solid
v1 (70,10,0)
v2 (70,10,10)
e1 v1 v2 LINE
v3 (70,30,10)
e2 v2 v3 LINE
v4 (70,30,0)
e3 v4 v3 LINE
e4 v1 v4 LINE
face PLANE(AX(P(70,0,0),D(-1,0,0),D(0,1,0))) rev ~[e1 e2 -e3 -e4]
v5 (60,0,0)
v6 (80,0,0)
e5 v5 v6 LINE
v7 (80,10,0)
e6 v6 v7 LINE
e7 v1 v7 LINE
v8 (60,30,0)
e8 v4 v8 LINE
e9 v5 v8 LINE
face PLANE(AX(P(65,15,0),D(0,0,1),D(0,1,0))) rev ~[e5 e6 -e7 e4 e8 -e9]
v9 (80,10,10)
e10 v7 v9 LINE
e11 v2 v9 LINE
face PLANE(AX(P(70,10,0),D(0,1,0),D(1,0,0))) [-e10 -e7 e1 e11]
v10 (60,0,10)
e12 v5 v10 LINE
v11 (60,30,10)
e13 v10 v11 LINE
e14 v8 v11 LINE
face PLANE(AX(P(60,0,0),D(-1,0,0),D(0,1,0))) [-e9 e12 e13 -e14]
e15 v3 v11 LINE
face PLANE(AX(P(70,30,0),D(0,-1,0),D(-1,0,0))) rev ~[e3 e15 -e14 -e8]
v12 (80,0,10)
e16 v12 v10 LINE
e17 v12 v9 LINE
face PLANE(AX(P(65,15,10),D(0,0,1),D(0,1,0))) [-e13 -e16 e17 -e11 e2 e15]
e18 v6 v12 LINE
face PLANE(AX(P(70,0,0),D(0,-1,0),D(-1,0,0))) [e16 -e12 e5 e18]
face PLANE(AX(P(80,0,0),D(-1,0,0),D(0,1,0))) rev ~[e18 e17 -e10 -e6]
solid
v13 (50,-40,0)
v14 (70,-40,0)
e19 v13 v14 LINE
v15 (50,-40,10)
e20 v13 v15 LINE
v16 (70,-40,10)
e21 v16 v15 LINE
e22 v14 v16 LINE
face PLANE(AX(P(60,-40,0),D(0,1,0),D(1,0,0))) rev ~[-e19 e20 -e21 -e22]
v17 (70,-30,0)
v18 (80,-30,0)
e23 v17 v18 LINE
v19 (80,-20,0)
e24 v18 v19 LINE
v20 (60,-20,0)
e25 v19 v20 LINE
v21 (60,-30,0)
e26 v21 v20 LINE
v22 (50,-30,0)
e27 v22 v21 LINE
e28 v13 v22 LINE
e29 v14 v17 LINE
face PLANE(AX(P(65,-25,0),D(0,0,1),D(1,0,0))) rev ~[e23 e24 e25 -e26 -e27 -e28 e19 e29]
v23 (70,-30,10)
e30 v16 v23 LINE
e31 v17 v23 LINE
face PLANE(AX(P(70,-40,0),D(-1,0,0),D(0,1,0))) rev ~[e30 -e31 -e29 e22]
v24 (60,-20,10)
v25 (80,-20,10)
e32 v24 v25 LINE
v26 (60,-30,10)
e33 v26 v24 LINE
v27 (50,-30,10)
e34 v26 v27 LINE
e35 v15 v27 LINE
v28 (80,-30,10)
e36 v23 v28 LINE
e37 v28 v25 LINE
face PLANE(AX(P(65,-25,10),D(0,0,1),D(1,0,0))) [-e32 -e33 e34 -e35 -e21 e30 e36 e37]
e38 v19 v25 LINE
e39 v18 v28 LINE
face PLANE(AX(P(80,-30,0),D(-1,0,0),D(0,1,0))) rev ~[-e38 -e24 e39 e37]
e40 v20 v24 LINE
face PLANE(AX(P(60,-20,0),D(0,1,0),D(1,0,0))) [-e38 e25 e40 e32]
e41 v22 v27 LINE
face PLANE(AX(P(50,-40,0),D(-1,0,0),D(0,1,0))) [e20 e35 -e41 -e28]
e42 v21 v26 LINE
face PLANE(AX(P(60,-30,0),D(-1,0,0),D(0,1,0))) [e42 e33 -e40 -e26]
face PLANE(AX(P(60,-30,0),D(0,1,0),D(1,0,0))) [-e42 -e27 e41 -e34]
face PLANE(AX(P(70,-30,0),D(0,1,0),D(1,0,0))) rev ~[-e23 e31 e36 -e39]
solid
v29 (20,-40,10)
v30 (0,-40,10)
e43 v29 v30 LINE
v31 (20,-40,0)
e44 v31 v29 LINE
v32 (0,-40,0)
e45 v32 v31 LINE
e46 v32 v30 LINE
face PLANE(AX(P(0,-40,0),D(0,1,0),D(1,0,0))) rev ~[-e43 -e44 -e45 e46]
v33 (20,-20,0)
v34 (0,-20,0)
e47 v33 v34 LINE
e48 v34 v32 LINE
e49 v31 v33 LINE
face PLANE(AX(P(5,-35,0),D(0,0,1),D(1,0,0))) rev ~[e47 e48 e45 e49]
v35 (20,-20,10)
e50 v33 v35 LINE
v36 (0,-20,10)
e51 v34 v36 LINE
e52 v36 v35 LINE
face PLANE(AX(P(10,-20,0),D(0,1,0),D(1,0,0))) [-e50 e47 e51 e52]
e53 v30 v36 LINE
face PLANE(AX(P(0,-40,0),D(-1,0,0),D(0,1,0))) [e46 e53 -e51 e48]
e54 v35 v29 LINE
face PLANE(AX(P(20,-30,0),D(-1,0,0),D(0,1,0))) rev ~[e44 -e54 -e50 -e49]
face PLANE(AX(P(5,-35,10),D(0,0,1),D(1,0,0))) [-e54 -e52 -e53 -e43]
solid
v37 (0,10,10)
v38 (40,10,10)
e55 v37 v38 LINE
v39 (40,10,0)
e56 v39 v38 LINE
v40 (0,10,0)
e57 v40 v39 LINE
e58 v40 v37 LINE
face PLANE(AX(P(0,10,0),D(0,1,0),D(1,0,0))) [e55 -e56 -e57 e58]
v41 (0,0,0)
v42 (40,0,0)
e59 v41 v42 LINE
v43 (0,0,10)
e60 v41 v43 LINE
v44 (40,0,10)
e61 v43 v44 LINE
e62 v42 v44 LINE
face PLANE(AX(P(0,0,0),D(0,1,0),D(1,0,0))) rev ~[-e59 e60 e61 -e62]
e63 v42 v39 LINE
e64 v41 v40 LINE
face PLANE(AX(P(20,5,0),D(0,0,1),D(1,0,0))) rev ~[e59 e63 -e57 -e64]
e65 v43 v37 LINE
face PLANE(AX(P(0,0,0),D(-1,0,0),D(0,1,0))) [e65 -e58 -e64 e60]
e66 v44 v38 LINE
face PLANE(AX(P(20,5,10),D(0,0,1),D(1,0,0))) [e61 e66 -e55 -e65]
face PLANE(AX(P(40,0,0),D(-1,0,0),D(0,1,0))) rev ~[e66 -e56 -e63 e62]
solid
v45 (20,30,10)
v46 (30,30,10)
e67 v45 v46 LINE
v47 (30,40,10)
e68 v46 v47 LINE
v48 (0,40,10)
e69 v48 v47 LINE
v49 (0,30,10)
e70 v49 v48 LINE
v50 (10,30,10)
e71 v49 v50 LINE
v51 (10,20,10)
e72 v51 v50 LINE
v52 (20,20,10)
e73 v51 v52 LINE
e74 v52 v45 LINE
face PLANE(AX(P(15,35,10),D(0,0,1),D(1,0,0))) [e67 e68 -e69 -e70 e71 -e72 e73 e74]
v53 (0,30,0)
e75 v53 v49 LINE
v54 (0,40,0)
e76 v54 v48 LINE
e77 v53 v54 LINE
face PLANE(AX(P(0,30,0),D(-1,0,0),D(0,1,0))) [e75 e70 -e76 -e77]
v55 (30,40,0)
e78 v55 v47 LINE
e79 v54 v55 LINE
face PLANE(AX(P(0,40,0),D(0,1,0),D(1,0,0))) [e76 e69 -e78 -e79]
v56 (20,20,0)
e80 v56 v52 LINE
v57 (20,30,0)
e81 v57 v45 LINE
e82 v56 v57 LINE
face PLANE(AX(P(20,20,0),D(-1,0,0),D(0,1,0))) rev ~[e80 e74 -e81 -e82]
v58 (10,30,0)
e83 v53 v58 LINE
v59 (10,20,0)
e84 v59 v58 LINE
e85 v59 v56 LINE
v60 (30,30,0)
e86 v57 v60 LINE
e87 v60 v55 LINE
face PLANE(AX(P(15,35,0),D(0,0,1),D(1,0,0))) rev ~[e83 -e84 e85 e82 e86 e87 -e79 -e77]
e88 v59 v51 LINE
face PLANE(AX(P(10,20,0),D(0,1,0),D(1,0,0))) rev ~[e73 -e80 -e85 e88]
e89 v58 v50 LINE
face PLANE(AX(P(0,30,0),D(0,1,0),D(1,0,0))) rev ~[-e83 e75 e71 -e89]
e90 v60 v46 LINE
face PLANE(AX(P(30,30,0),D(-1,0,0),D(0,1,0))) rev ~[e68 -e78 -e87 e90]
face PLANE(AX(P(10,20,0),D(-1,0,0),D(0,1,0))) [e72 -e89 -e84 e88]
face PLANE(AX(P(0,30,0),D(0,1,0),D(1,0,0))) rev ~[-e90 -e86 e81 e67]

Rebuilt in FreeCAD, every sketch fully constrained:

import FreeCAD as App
import Part
import Sketcher
from FreeCAD import Vector


def add_polygon(sketch, points):
    """Adds a closed chain of lines whose ends are joined by coincident constraints."""
    first, n = sketch.GeometryCount, len(points)
    for a, b in zip(points, points[1:] + points[:1]):
        sketch.addGeometry(Part.LineSegment(App.Vector(*a, 0), App.Vector(*b, 0)), False)
    for i in range(n):
        sketch.addConstraint(Sketcher.Constraint("Coincident", first + i, 2, first + (i + 1) % n, 1))

doc = App.newDocument("Part")
params = doc.addObject("Spreadsheet::Sheet", "Params")
for row, (alias, value) in enumerate([
    ("sketch1_width", "40 mm"),
    ("sketch1_height", "10 mm"),
    ("pad1_length", "10 mm"),
    ("sketch2_width", "30 mm"),
    ("sketch2_height", "10 mm"),
    ("pad2_length", "10 mm"),
    ("sketch3_width", "10 mm"),
    ("pad3_length", "10 mm"),
    ("sketch4_width", "10 mm"),
    ("pad4_length", "10 mm"),
    ("sketch5_width", "10 mm"),
    ("pad5_length", "10 mm"),
    ("sketch6_width", "10 mm"),
    ("pad6_length", "10 mm"),
    ("sketch7_width", "10 mm"),
    ("pad7_length", "10 mm"),
    ("sketch8_width", "10 mm"),
    ("sketch8_height", "30 mm"),
    ("pad8_length", "10 mm"),
    ("sketch9_width", "10 mm"),
    ("pad9_length", "10 mm"),
    ("sketch10_width", "10 mm"),
    ("pad10_length", "10 mm"),
    ("sketch11_width", "10 mm"),
    ("pad11_length", "10 mm"),
    ("sketch12_width", "10 mm"),
    ("pad12_length", "10 mm"),
    ("sketch13_width", "10 mm"),
    ("pad13_length", "10 mm"),
], start=1):
    params.set(f"A{row}", alias)
    params.set(f"B{row}", "=" + value)
    params.setAlias(f"B{row}", alias)

body = doc.addObject("PartDesign::Body", "Body")

# Sketch on XY plane
sketch1 = doc.addObject("Sketcher::SketchObject", "Sketch")
body.addObject(sketch1)
sketch1.AttachmentSupport = (doc.XY_Plane, [""])
sketch1.MapMode = "FlatFace"
add_polygon(sketch1, [(0, 10), (0, 0), (40, 0), (40, 10)])  # lines 0-3
sketch1.addConstraint([
    Sketcher.Constraint("Vertical", 0),
    Sketcher.Constraint("Horizontal", 1),
    Sketcher.Constraint("Vertical", 2),
    Sketcher.Constraint("Horizontal", 3),
    Sketcher.Constraint("Coincident", 0, 2, -1, 1),
    Sketcher.Constraint("DistanceX", 1, 1, 1, 2, 40.0),
    Sketcher.Constraint("DistanceY", 0, 2, 0, 1, 10.0),
])
sketch1.setExpression("Constraints[9]", "Params.sketch1_width")
sketch1.setExpression("Constraints[10]", "Params.sketch1_height")
pad1 = doc.addObject("PartDesign::Pad", "Pad")
body.addObject(pad1)
pad1.Profile = sketch1
pad1.setExpression("Length", "Params.pad1_length")
body2 = doc.addObject("PartDesign::Body", "Body001")

# Sketch on XY plane
sketch2 = doc.addObject("Sketcher::SketchObject", "Sketch001")
body2.addObject(sketch2)
sketch2.AttachmentSupport = (doc.getObject("XY_Plane001"), [""])
sketch2.MapMode = "FlatFace"
add_polygon(sketch2, [(0, 40), (0, 30), (30, 30), (30, 40)])  # lines 0-3
sketch2.addConstraint([
    Sketcher.Constraint("Vertical", 0),
    Sketcher.Constraint("Horizontal", 1),
    Sketcher.Constraint("Vertical", 2),
    Sketcher.Constraint("Horizontal", 3),
    Sketcher.Constraint("PointOnObject", 0, 2, -2),
    Sketcher.Constraint("DistanceX", 1, 1, 1, 2, 30.0),
    Sketcher.Constraint("DistanceY", 0, 2, 0, 1, 10.0),
    Sketcher.Constraint("DistanceY", -1, 1, 0, 2, 30.0),
])
sketch2.setExpression("Constraints[9]", "Params.sketch2_width")
sketch2.setExpression("Constraints[10]", "Params.sketch2_height")
pad2 = doc.addObject("PartDesign::Pad", "Pad001")
body2.addObject(pad2)
pad2.Profile = sketch2
pad2.setExpression("Length", "Params.pad2_length")
body3 = doc.addObject("PartDesign::Body", "Body002")

# Sketch on XY plane
sketch3 = doc.addObject("Sketcher::SketchObject", "Sketch002")
body3.addObject(sketch3)
sketch3.AttachmentSupport = (doc.getObject("XY_Plane002"), [""])
sketch3.MapMode = "FlatFace"
add_polygon(sketch3, [(10, 30), (10, 20), (20, 20), (20, 30)])  # lines 0-3
sketch3.addConstraint([
    Sketcher.Constraint("Vertical", 0),
    Sketcher.Constraint("Horizontal", 1),
    Sketcher.Constraint("Vertical", 2),
    Sketcher.Constraint("Horizontal", 3),
    Sketcher.Constraint("Equal", 3, 0),
    Sketcher.Constraint("DistanceX", 1, 1, 1, 2, 10.0),
    Sketcher.Constraint("DistanceX", -1, 1, 0, 2, 10.0),
    Sketcher.Constraint("DistanceY", -1, 1, 0, 2, 20.0),
])
sketch3.setExpression("Constraints[9]", "Params.sketch3_width")
pad3 = doc.addObject("PartDesign::Pad", "Pad002")
body3.addObject(pad3)
pad3.Profile = sketch3
pad3.setExpression("Length", "Params.pad3_length")
doc.recompute()

boolean = doc.addObject("PartDesign::Boolean", "Boolean")
body3.addObject(boolean)
boolean.Type = "Fuse"
boolean.addObjects([body2])
body4 = doc.addObject("PartDesign::Body", "Body003")

# Sketch on XY plane
sketch4 = doc.addObject("Sketcher::SketchObject", "Sketch003")
body4.addObject(sketch4)
sketch4.AttachmentSupport = (doc.getObject("XY_Plane003"), [""])
sketch4.MapMode = "FlatFace"
add_polygon(sketch4, [(0, -20), (0, -30), (10, -30), (10, -20)])  # lines 0-3
sketch4.addConstraint([
    Sketcher.Constraint("Vertical", 0),
    Sketcher.Constraint("Horizontal", 1),
    Sketcher.Constraint("Vertical", 2),
    Sketcher.Constraint("Horizontal", 3),
    Sketcher.Constraint("PointOnObject", 0, 2, -2),
    Sketcher.Constraint("Equal", 3, 0),
    Sketcher.Constraint("DistanceX", 1, 1, 1, 2, 10.0),
    Sketcher.Constraint("DistanceY", 0, 2, -1, 1, 30.0),
])
sketch4.setExpression("Constraints[10]", "Params.sketch4_width")
pad4 = doc.addObject("PartDesign::Pad", "Pad003")
body4.addObject(pad4)
pad4.Profile = sketch4
pad4.setExpression("Length", "Params.pad4_length")
body5 = doc.addObject("PartDesign::Body", "Body004")

# Sketch on XY plane
sketch5 = doc.addObject("Sketcher::SketchObject", "Sketch004")
body5.addObject(sketch5)
sketch5.AttachmentSupport = (doc.getObject("XY_Plane004"), [""])
sketch5.MapMode = "FlatFace"
add_polygon(sketch5, [(10, -20), (10, -30), (20, -30), (20, -20)])  # lines 0-3
sketch5.addConstraint([
    Sketcher.Constraint("Vertical", 0),
    Sketcher.Constraint("Horizontal", 1),
    Sketcher.Constraint("Vertical", 2),
    Sketcher.Constraint("Horizontal", 3),
    Sketcher.Constraint("Equal", 3, 0),
    Sketcher.Constraint("DistanceX", 1, 1, 1, 2, 10.0),
    Sketcher.Constraint("DistanceX", -1, 1, 0, 2, 10.0),
    Sketcher.Constraint("DistanceY", 0, 2, -1, 1, 30.0),
])
sketch5.setExpression("Constraints[9]", "Params.sketch5_width")
pad5 = doc.addObject("PartDesign::Pad", "Pad004")
body5.addObject(pad5)
pad5.Profile = sketch5
pad5.setExpression("Length", "Params.pad5_length")
body6 = doc.addObject("PartDesign::Body", "Body005")

# Sketch on XY plane
sketch6 = doc.addObject("Sketcher::SketchObject", "Sketch005")
body6.addObject(sketch6)
sketch6.AttachmentSupport = (doc.getObject("XY_Plane005"), [""])
sketch6.MapMode = "FlatFace"
add_polygon(sketch6, [(0, -30), (0, -40), (10, -40), (10, -30)])  # lines 0-3
sketch6.addConstraint([
    Sketcher.Constraint("Vertical", 0),
    Sketcher.Constraint("Horizontal", 1),
    Sketcher.Constraint("Vertical", 2),
    Sketcher.Constraint("Horizontal", 3),
    Sketcher.Constraint("PointOnObject", 0, 2, -2),
    Sketcher.Constraint("Equal", 3, 0),
    Sketcher.Constraint("DistanceX", 1, 1, 1, 2, 10.0),
    Sketcher.Constraint("DistanceY", 0, 2, -1, 1, 40.0),
])
sketch6.setExpression("Constraints[10]", "Params.sketch6_width")
pad6 = doc.addObject("PartDesign::Pad", "Pad005")
body6.addObject(pad6)
pad6.Profile = sketch6
pad6.setExpression("Length", "Params.pad6_length")
body7 = doc.addObject("PartDesign::Body", "Body006")
body7.AllowCompound = True

# Sketch on XY plane
sketch7 = doc.addObject("Sketcher::SketchObject", "Sketch006")
body7.addObject(sketch7)
sketch7.AttachmentSupport = (doc.getObject("XY_Plane006"), [""])
sketch7.MapMode = "FlatFace"
add_polygon(sketch7, [(10, -30), (10, -40), (20, -40), (20, -30)])  # lines 0-3
sketch7.addConstraint([
    Sketcher.Constraint("Vertical", 0),
    Sketcher.Constraint("Horizontal", 1),
    Sketcher.Constraint("Vertical", 2),
    Sketcher.Constraint("Horizontal", 3),
    Sketcher.Constraint("Equal", 3, 0),
    Sketcher.Constraint("DistanceX", 1, 1, 1, 2, 10.0),
    Sketcher.Constraint("DistanceX", -1, 1, 0, 2, 10.0),
    Sketcher.Constraint("DistanceY", 0, 2, -1, 1, 40.0),
])
sketch7.setExpression("Constraints[9]", "Params.sketch7_width")
pad7 = doc.addObject("PartDesign::Pad", "Pad006")
body7.addObject(pad7)
pad7.Profile = sketch7
pad7.setExpression("Length", "Params.pad7_length")
doc.recompute()

boolean2 = doc.addObject("PartDesign::Boolean", "Boolean001")
body7.addObject(boolean2)
boolean2.Type = "Fuse"
boolean2.addObjects([body4])
doc.recompute()

boolean3 = doc.addObject("PartDesign::Boolean", "Boolean002")
body7.addObject(boolean3)
boolean3.Type = "Fuse"
boolean3.addObjects([body5])
doc.recompute()

boolean4 = doc.addObject("PartDesign::Boolean", "Boolean003")
body7.addObject(boolean4)
boolean4.Type = "Fuse"
boolean4.addObjects([body6])
body8 = doc.addObject("PartDesign::Body", "Body007")

# Sketch on XY plane
sketch8 = doc.addObject("Sketcher::SketchObject", "Sketch007")
body8.addObject(sketch8)
sketch8.AttachmentSupport = (doc.getObject("XY_Plane007"), [""])
sketch8.MapMode = "FlatFace"
add_polygon(sketch8, [(60, 0), (70, 0), (70, 30), (60, 30)])  # lines 0-3
sketch8.addConstraint([
    Sketcher.Constraint("Horizontal", 0),
    Sketcher.Constraint("Vertical", 1),
    Sketcher.Constraint("Horizontal", 2),
    Sketcher.Constraint("Vertical", 3),
    Sketcher.Constraint("PointOnObject", 0, 2, -1),
    Sketcher.Constraint("DistanceX", 0, 1, 0, 2, 10.0),
    Sketcher.Constraint("DistanceY", 1, 1, 1, 2, 30.0),
    Sketcher.Constraint("DistanceX", -1, 1, 0, 2, 70.0),
])
sketch8.setExpression("Constraints[9]", "Params.sketch8_width")
sketch8.setExpression("Constraints[10]", "Params.sketch8_height")
pad8 = doc.addObject("PartDesign::Pad", "Pad007")
body8.addObject(pad8)
pad8.Profile = sketch8
pad8.setExpression("Length", "Params.pad8_length")
body9 = doc.addObject("PartDesign::Body", "Body008")

# Sketch on XY plane
sketch9 = doc.addObject("Sketcher::SketchObject", "Sketch008")
body9.addObject(sketch9)
sketch9.AttachmentSupport = (doc.getObject("XY_Plane008"), [""])
sketch9.MapMode = "FlatFace"
add_polygon(sketch9, [(70, 10), (70, 0), (80, 0), (80, 10)])  # lines 0-3
sketch9.addConstraint([
    Sketcher.Constraint("Vertical", 0),
    Sketcher.Constraint("Horizontal", 1),
    Sketcher.Constraint("Vertical", 2),
    Sketcher.Constraint("Horizontal", 3),
    Sketcher.Constraint("PointOnObject", 0, 2, -1),
    Sketcher.Constraint("Equal", 3, 0),
    Sketcher.Constraint("DistanceX", 1, 1, 1, 2, 10.0),
    Sketcher.Constraint("DistanceX", -1, 1, 0, 2, 70.0),
])
sketch9.setExpression("Constraints[10]", "Params.sketch9_width")
pad9 = doc.addObject("PartDesign::Pad", "Pad008")
body9.addObject(pad9)
pad9.Profile = sketch9
pad9.setExpression("Length", "Params.pad9_length")
doc.recompute()

boolean5 = doc.addObject("PartDesign::Boolean", "Boolean004")
body9.addObject(boolean5)
boolean5.Type = "Fuse"
boolean5.addObjects([body8])
body10 = doc.addObject("PartDesign::Body", "Body009")

# Sketch on XY plane
sketch10 = doc.addObject("Sketcher::SketchObject", "Sketch009")
body10.addObject(sketch10)
sketch10.AttachmentSupport = (doc.getObject("XY_Plane009"), [""])
sketch10.MapMode = "FlatFace"
add_polygon(sketch10, [(50, -30), (50, -40), (60, -40), (60, -30)])  # lines 0-3
sketch10.addConstraint([
    Sketcher.Constraint("Vertical", 0),
    Sketcher.Constraint("Horizontal", 1),
    Sketcher.Constraint("Vertical", 2),
    Sketcher.Constraint("Horizontal", 3),
    Sketcher.Constraint("Equal", 3, 0),
    Sketcher.Constraint("DistanceX", 1, 1, 1, 2, 10.0),
    Sketcher.Constraint("DistanceX", -1, 1, 0, 2, 50.0),
    Sketcher.Constraint("DistanceY", 0, 2, -1, 1, 40.0),
])
sketch10.setExpression("Constraints[9]", "Params.sketch10_width")
pad10 = doc.addObject("PartDesign::Pad", "Pad009")
body10.addObject(pad10)
pad10.Profile = sketch10
pad10.setExpression("Length", "Params.pad10_length")
body11 = doc.addObject("PartDesign::Body", "Body010")

# Sketch on XY plane
sketch11 = doc.addObject("Sketcher::SketchObject", "Sketch010")
body11.addObject(sketch11)
sketch11.AttachmentSupport = (doc.getObject("XY_Plane010"), [""])
sketch11.MapMode = "FlatFace"
add_polygon(sketch11, [(60, -30), (60, -40), (70, -40), (70, -30)])  # lines 0-3
sketch11.addConstraint([
    Sketcher.Constraint("Vertical", 0),
    Sketcher.Constraint("Horizontal", 1),
    Sketcher.Constraint("Vertical", 2),
    Sketcher.Constraint("Horizontal", 3),
    Sketcher.Constraint("Equal", 3, 0),
    Sketcher.Constraint("DistanceX", 1, 1, 1, 2, 10.0),
    Sketcher.Constraint("DistanceX", -1, 1, 0, 2, 60.0),
    Sketcher.Constraint("DistanceY", 0, 2, -1, 1, 40.0),
])
sketch11.setExpression("Constraints[9]", "Params.sketch11_width")
pad11 = doc.addObject("PartDesign::Pad", "Pad010")
body11.addObject(pad11)
pad11.Profile = sketch11
pad11.setExpression("Length", "Params.pad11_length")
body12 = doc.addObject("PartDesign::Body", "Body011")

# Sketch on XY plane
sketch12 = doc.addObject("Sketcher::SketchObject", "Sketch011")
body12.addObject(sketch12)
sketch12.AttachmentSupport = (doc.getObject("XY_Plane011"), [""])
sketch12.MapMode = "FlatFace"
add_polygon(sketch12, [(60, -20), (60, -30), (70, -30), (70, -20)])  # lines 0-3
sketch12.addConstraint([
    Sketcher.Constraint("Vertical", 0),
    Sketcher.Constraint("Horizontal", 1),
    Sketcher.Constraint("Vertical", 2),
    Sketcher.Constraint("Horizontal", 3),
    Sketcher.Constraint("Equal", 3, 0),
    Sketcher.Constraint("DistanceX", 1, 1, 1, 2, 10.0),
    Sketcher.Constraint("DistanceX", -1, 1, 0, 2, 60.0),
    Sketcher.Constraint("DistanceY", 0, 2, -1, 1, 30.0),
])
sketch12.setExpression("Constraints[9]", "Params.sketch12_width")
pad12 = doc.addObject("PartDesign::Pad", "Pad011")
body12.addObject(pad12)
pad12.Profile = sketch12
pad12.setExpression("Length", "Params.pad12_length")
body13 = doc.addObject("PartDesign::Body", "Body012")
body13.AllowCompound = True

# Sketch on XY plane
sketch13 = doc.addObject("Sketcher::SketchObject", "Sketch012")
body13.addObject(sketch13)
sketch13.AttachmentSupport = (doc.getObject("XY_Plane012"), [""])
sketch13.MapMode = "FlatFace"
add_polygon(sketch13, [(70, -20), (70, -30), (80, -30), (80, -20)])  # lines 0-3
sketch13.addConstraint([
    Sketcher.Constraint("Vertical", 0),
    Sketcher.Constraint("Horizontal", 1),
    Sketcher.Constraint("Vertical", 2),
    Sketcher.Constraint("Horizontal", 3),
    Sketcher.Constraint("Equal", 3, 0),
    Sketcher.Constraint("DistanceX", 1, 1, 1, 2, 10.0),
    Sketcher.Constraint("DistanceX", -1, 1, 0, 2, 70.0),
    Sketcher.Constraint("DistanceY", 0, 2, -1, 1, 30.0),
])
sketch13.setExpression("Constraints[9]", "Params.sketch13_width")
pad13 = doc.addObject("PartDesign::Pad", "Pad012")
body13.addObject(pad13)
pad13.Profile = sketch13
pad13.setExpression("Length", "Params.pad13_length")
doc.recompute()

boolean6 = doc.addObject("PartDesign::Boolean", "Boolean005")
body13.addObject(boolean6)
boolean6.Type = "Fuse"
boolean6.addObjects([body10])
doc.recompute()

boolean7 = doc.addObject("PartDesign::Boolean", "Boolean006")
body13.addObject(boolean7)
boolean7.Type = "Fuse"
boolean7.addObjects([body11])
doc.recompute()

boolean8 = doc.addObject("PartDesign::Boolean", "Boolean007")
body13.addObject(boolean8)
boolean8.Type = "Fuse"
boolean8.addObjects([body12])

doc.recompute()
